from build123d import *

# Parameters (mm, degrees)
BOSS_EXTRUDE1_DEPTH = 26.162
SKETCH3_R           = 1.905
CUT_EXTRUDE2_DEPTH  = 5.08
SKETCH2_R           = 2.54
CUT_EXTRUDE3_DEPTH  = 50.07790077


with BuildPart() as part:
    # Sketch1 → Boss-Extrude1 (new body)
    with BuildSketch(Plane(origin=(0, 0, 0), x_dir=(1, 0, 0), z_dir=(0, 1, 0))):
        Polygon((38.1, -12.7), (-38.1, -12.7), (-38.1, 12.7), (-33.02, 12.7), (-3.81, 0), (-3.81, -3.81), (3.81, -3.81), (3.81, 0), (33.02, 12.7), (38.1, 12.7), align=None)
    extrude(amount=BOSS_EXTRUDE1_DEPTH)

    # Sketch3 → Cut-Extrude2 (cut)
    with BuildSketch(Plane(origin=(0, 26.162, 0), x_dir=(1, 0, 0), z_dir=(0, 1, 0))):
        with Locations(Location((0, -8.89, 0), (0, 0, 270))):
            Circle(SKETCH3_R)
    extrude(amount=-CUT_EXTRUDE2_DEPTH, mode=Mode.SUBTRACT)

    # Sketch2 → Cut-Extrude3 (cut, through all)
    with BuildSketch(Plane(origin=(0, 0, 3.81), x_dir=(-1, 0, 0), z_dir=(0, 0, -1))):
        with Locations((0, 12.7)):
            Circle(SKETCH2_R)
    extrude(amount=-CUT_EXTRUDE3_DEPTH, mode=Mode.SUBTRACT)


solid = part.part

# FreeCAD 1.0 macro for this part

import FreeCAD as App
import Part
import Sketcher

V = App.Vector
Q = App.Units.Quantity


def add_polygon(sketch, points):
    """Adds a closed chain of lines whose ends are joined by coincident constraints."""
    first, n = sketch.GeometryCount, len(points)
    for a, b in zip(points, points[1:] + points[:1]):
        sketch.addGeometry(Part.LineSegment(App.Vector(*a, 0), App.Vector(*b, 0)), False)
    for i in range(n):
        sketch.addConstraint(Sketcher.Constraint("Coincident", first + i, 2, first + (i + 1) % n, 1))

doc = App.newDocument("Part")
body = doc.addObject("PartDesign::Body", "Body")

sketch1 = body.newObject("Sketcher::SketchObject", "Sketch")
sketch1.AttachmentSupport = (doc.getObject("XZ_Plane"), [""])
sketch1.MapMode = "FlatFace"
add_polygon(sketch1, [(-38.1, 12.7), (38.1, 12.7), (38.1, -12.7), (33, -12.7), (3.8, 0), (3.8, 3.8), (-3.8, 3.8), (-3.8, 0), (-33, -12.7), (-38.1, -12.7)])
sketch1.addConstraint(Sketcher.Constraint("Horizontal", 0))
sketch1.addConstraint(Sketcher.Constraint("Vertical", 1))
sketch1.addConstraint(Sketcher.Constraint("Horizontal", 2))
sketch1.addConstraint(Sketcher.Constraint("Vertical", 4))
sketch1.addConstraint(Sketcher.Constraint("Horizontal", 5))
sketch1.addConstraint(Sketcher.Constraint("Vertical", 6))
sketch1.addConstraint(Sketcher.Constraint("Horizontal", 8))
sketch1.addConstraint(Sketcher.Constraint("Vertical", 9))
sketch1.addConstraint(Sketcher.Constraint("Symmetric", 3, 2, 6, 2, -1, 1))
sketch1.addConstraint(Sketcher.Constraint("Symmetric", 0, 2, 8, 2, -1, 1))
sketch1.addConstraint(Sketcher.Constraint("Symmetric", 2, 2, 7, 2, -2))
sketch1.addConstraint(Sketcher.Constraint("PointOnObject", 3, 2, -1))
sketch1.addConstraint(Sketcher.Constraint("DistanceX", 0, 1, 0, 2, Q("3 in")))
sketch1.addConstraint(Sketcher.Constraint("DistanceY", 1, 2, 1, 1, Q("1 in")))
sketch1.addConstraint(Sketcher.Constraint("DistanceX", 2, 2, 2, 1, Q("0.2 in")))
sketch1.addConstraint(Sketcher.Constraint("DistanceX", 5, 2, 5, 1, Q("0.3 in")))
sketch1.addConstraint(Sketcher.Constraint("DistanceY", 4, 1, 4, 2, Q("0.15 in")))
pad1 = body.newObject("PartDesign::Pad", "Pad")
pad1.Profile = sketch1
pad1.Length = Q("1.03 in")
pad1.Reversed = True

sketch2 = body.newObject("Sketcher::SketchObject", "Sketch001")
sketch2.AttachmentSupport = (doc.getObject("XZ_Plane"), [""])
sketch2.MapMode = "FlatFace"
sketch2.AttachmentOffset = App.Placement(V(0, 0, -1.03 * 25.4), App.Rotation())
sketch2.addGeometry(Part.Circle(V(0, 8.9, 0), V(0, 0, 1), 1.9), False)
sketch2.addConstraint(Sketcher.Constraint("PointOnObject", 0, 3, -2))
sketch2.addConstraint(Sketcher.Constraint("Diameter", 0, Q("0.15 in")))
sketch2.addConstraint(Sketcher.Constraint("DistanceY", -1, 1, 0, 3, Q("0.35 in")))
pocket1 = body.newObject("PartDesign::Pocket", "Pocket")
pocket1.Profile = sketch2
pocket1.Length = Q("0.2 in")
pocket1.Reversed = True

sketch3 = body.newObject("Sketcher::SketchObject", "Sketch002")
sketch3.AttachmentSupport = (doc.getObject("XY_Plane"), [""])
sketch3.MapMode = "FlatFace"
sketch3.AttachmentOffset = App.Placement(V(0, 0, 0.15 * 25.4), App.Rotation())
sketch3.addGeometry(Part.Circle(V(0, 12.7, 0), V(0, 0, 1), 2.5), False)
sketch3.addConstraint(Sketcher.Constraint("PointOnObject", 0, 3, -2))
sketch3.addConstraint(Sketcher.Constraint("Diameter", 0, Q("0.2 in")))
sketch3.addConstraint(Sketcher.Constraint("DistanceY", -1, 1, 0, 3, Q("0.5 in")))
pocket2 = body.newObject("PartDesign::Pocket", "Pocket001")
pocket2.Profile = sketch3
pocket2.Type = "ThroughAll"
pocket2.Reversed = True

doc.recompute()
